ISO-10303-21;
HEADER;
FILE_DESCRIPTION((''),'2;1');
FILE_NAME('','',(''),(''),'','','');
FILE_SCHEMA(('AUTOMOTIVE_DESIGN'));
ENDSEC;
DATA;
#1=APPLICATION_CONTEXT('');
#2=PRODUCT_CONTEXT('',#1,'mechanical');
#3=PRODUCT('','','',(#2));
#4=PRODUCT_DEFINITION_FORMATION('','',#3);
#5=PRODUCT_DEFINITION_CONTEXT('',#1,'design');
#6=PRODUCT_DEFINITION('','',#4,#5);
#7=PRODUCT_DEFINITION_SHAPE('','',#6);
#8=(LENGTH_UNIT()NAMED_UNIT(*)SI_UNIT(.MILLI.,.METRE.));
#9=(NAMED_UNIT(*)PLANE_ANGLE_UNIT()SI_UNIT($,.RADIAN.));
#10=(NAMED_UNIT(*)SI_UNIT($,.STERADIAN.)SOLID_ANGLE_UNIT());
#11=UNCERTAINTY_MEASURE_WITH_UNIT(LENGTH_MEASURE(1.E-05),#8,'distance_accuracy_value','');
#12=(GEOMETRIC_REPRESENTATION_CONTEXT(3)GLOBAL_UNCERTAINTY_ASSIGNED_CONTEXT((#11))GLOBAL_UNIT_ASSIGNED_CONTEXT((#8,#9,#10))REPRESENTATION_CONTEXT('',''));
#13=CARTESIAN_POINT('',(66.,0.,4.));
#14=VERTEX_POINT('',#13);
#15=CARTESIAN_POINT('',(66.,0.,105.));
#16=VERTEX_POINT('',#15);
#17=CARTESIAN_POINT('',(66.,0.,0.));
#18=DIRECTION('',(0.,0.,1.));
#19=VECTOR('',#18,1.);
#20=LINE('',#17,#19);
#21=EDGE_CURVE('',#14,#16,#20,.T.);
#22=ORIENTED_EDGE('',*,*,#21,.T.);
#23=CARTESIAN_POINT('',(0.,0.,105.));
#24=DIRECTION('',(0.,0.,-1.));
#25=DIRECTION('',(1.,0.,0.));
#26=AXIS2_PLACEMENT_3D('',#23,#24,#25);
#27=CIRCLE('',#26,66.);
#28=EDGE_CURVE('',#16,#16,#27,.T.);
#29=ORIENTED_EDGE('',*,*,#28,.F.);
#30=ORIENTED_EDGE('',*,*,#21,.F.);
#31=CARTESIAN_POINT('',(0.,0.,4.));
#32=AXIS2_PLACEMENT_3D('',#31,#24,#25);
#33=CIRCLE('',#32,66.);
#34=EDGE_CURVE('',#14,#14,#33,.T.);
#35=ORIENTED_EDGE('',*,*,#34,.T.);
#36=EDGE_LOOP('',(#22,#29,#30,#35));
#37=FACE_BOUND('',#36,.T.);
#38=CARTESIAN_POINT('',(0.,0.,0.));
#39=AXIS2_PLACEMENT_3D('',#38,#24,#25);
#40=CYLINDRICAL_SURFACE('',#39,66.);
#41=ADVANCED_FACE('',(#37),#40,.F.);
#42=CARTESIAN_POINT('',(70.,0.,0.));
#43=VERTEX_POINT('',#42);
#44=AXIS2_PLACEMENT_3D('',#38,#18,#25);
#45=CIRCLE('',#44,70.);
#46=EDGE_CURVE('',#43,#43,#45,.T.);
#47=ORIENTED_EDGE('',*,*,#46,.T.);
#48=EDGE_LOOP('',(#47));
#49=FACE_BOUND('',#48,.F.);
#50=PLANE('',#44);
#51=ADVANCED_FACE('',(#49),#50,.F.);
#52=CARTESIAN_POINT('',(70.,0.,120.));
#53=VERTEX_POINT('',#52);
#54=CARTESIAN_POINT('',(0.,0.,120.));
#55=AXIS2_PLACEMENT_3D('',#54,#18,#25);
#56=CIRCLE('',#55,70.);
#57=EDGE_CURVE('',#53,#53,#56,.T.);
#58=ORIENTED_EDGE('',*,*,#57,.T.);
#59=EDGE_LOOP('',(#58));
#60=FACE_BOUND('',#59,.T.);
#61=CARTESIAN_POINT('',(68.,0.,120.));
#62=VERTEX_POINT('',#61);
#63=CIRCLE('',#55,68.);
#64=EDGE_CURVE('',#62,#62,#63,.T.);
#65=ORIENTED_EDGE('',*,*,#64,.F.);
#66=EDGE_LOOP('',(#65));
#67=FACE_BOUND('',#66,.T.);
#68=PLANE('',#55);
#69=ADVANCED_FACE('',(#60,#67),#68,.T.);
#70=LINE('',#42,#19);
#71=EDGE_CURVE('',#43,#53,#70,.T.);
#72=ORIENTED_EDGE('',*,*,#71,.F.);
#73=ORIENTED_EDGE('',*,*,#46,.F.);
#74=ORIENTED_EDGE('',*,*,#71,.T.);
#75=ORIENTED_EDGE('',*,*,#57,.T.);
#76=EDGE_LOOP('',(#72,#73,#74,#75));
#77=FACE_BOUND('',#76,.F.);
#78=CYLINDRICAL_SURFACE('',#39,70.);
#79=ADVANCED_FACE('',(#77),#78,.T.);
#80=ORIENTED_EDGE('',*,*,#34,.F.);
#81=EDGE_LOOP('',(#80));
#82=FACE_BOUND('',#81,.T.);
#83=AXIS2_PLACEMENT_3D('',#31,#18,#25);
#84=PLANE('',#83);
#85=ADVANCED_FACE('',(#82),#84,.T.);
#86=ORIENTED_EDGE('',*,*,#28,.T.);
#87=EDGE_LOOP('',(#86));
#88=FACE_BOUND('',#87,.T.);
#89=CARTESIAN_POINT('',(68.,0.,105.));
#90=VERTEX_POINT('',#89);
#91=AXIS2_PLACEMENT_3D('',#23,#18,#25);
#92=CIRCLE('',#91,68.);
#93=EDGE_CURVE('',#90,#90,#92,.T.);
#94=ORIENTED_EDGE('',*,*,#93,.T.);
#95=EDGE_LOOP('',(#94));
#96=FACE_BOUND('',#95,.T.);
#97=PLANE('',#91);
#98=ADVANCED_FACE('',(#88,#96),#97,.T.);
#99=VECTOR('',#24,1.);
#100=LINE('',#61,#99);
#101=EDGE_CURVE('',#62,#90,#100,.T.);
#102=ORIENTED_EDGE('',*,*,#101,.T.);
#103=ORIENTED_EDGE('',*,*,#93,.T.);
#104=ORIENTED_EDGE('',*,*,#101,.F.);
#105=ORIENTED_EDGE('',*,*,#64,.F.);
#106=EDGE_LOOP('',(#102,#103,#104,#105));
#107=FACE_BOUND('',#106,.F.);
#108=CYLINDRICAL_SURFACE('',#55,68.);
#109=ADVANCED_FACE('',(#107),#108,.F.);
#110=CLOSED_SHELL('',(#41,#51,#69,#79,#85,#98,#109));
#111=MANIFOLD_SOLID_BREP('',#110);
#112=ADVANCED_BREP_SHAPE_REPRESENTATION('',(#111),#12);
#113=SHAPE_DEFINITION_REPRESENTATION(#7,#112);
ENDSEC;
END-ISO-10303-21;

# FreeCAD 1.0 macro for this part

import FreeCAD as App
import Part
import Sketcher
from FreeCAD import Vector


def faces_at(feature, points):
    """Names of the faces that lie closest to the given points."""
    faces = feature.Shape.Faces
    near = lambda p: min(range(len(faces)), key=lambda i: faces[i].distToShape(Part.Vertex(*p))[0])
    return sorted({f"Face{near(p) + 1}" for p in points})

doc = App.newDocument("Part")
params = doc.addObject("Spreadsheet::Sheet", "Params")
for row, (alias, value) in enumerate([
    ("sketch1_diameter", "140 mm"),
    ("pad1_length", "120 mm"),
    ("thickness_wall", "4 mm"),
    ("sketch2_diameter", "136 mm"),
    ("pocket1_length", "15 mm"),
], start=1):
    params.set(f"A{row}", alias)
    params.set(f"B{row}", "=" + value)
    params.setAlias(f"B{row}", alias)

body = doc.addObject("PartDesign::Body", "Body")

# Sketch on XY plane
sketch1 = body.newObject("Sketcher::SketchObject", "Sketch")
sketch1.AttachmentSupport = (doc.getObject("XY_Plane"), [""])
sketch1.MapMode = "FlatFace"
sketch1.addGeometry(Part.Circle(Vector(0, 0, 0), Vector(0, 0, 1), 70), False)
sketch1.addConstraint([
    Sketcher.Constraint("Coincident", 0, 3, -1, 1),
    Sketcher.Constraint("Diameter", 0, 140.0),
])
sketch1.setExpression("Constraints[1]", "Params.sketch1_diameter")
pad1 = body.newObject("PartDesign::Pad", "Pad")
pad1.Profile = sketch1
pad1.setExpression("Length", "Params.pad1_length")
doc.recompute()

thickness = body.newObject("PartDesign::Thickness", "Thickness")
thickness.Base = (pad1, faces_at(pad1, [(0, 0, 120)]))
thickness.setExpression("Value", "Params.thickness_wall")
thickness.Reversed = True
thickness.Join = "Arc"

# Sketch on XY plane
sketch2 = body.newObject("Sketcher::SketchObject", "Sketch001")
sketch2.AttachmentSupport = (doc.getObject("XY_Plane"), [""])
sketch2.MapMode = "FlatFace"
sketch2.AttachmentOffset = App.Placement(Vector(0, 0, 120), App.Rotation())
sketch2.addGeometry(Part.Circle(Vector(0, 0, 0), Vector(0, 0, 1), 68), False)
sketch2.addConstraint([
    Sketcher.Constraint("Coincident", 0, 3, -1, 1),
    Sketcher.Constraint("Diameter", 0, 136.0),
])
sketch2.setExpression("Constraints[1]", "Params.sketch2_diameter")
pocket1 = body.newObject("PartDesign::Pocket", "Pocket")
pocket1.Profile = sketch2
pocket1.setExpression("Length", "Params.pocket1_length")

doc.recompute()
